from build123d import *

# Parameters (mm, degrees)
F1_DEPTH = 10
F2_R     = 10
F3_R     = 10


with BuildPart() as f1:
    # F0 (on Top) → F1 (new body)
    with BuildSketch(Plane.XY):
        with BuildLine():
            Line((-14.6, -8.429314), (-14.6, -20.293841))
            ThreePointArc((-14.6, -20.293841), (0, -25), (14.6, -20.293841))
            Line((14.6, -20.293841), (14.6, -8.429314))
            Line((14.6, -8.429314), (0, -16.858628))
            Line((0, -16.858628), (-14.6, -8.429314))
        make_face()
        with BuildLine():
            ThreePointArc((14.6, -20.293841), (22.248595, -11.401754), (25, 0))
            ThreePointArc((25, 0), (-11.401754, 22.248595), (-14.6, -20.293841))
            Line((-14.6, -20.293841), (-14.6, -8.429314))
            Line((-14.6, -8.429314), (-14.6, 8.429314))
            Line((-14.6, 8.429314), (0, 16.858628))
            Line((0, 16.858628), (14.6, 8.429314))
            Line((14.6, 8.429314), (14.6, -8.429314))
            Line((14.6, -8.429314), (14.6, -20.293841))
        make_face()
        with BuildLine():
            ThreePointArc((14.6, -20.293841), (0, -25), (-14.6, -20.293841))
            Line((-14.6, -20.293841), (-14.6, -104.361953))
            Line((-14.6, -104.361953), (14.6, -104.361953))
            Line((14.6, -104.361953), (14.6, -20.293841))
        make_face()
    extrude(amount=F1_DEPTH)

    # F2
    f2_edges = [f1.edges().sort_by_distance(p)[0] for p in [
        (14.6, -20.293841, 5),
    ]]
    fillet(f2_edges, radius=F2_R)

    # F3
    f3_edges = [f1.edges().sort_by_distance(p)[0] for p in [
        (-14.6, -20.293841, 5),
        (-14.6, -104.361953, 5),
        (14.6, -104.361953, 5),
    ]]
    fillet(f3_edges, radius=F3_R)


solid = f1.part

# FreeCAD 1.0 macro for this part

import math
import FreeCAD as App
import Part
import Sketcher
from FreeCAD import Vector
Q = App.Units.Quantity


def edges_at(feature, points):
    """Names of the edges that pass closest to the given points."""
    edges = feature.Shape.Edges
    near = lambda p: min(range(len(edges)), key=lambda i: edges[i].distToShape(Part.Vertex(*p))[0])
    return sorted({f"Edge{near(p) + 1}" for p in points})

doc = App.newDocument("Part")
body = doc.addObject("PartDesign::Body", "Body")

sketch1 = body.newObject("Sketcher::SketchObject", "Sketch")
sketch1.AttachmentSupport = (doc.getObject("XY_Plane"), [""])
sketch1.MapMode = "FlatFace"
sketch1.addGeometry([
    Part.ArcOfCircle(Part.Circle(Vector(-0.000003, 0.000002, 0), Vector(0, 0, 1), 25.000003), math.radians(-54.267621), math.radians(-0.000004)),
    Part.ArcOfCircle(Part.Circle(Vector(0, 0, 0), Vector(0, 0, 1), 25), math.radians(0), math.radians(234.267623)),
    Part.LineSegment(Vector(-14.6, -20.293841, 0), Vector(-14.6, -104.361953, 0)),
    Part.LineSegment(Vector(-14.6, -104.361953, 0), Vector(14.6, -104.361953, 0)),
    Part.LineSegment(Vector(14.6, -104.361953, 0), Vector(14.6, -20.293841, 0)),
    Part.LineSegment(Vector(14.6, -8.429314, 0), Vector(0, -16.858628, 0)),
    Part.LineSegment(Vector(0, -16.858628, 0), Vector(-14.6, -8.429314, 0)),
    Part.LineSegment(Vector(-14.6, -8.429314, 0), Vector(-14.6, 8.429314, 0)),
    Part.LineSegment(Vector(-14.6, 8.429314, 0), Vector(0, 16.858628, 0)),
    Part.LineSegment(Vector(0, 16.858628, 0), Vector(14.6, 8.429314, 0)),
    Part.LineSegment(Vector(14.6, 8.429314, 0), Vector(14.6, -8.429314, 0)),
], False)
sketch1.addConstraint([
    Sketcher.Constraint("Tangent", 0, 2, 1, 1),
    Sketcher.Constraint("Coincident", 1, 2, 2, 1),
    Sketcher.Constraint("Coincident", 2, 2, 3, 1),
    Sketcher.Constraint("Coincident", 3, 2, 4, 1),
    Sketcher.Constraint("Coincident", 4, 2, 0, 1),
    Sketcher.Constraint("Coincident", 5, 2, 6, 1),
    Sketcher.Constraint("Coincident", 6, 2, 7, 1),
    Sketcher.Constraint("Coincident", 7, 2, 8, 1),
    Sketcher.Constraint("Coincident", 8, 2, 9, 1),
    Sketcher.Constraint("Coincident", 9, 2, 10, 1),
    Sketcher.Constraint("Coincident", 10, 2, 5, 1),
    Sketcher.Constraint("Vertical", 2),
    Sketcher.Constraint("Horizontal", 3),
    Sketcher.Constraint("Vertical", 4),
    Sketcher.Constraint("Vertical", 7),
    Sketcher.Constraint("Vertical", 10),
    Sketcher.Constraint("Coincident", 0, 3, -1, 1),
    Sketcher.Constraint("Symmetric", 5, 2, 8, 2, -1, 1),
    Sketcher.Constraint("Symmetric", 6, 2, 9, 2, -1, 1),
    Sketcher.Constraint("Symmetric", 1, 2, 4, 2, -2),
    Sketcher.Constraint("PointOnObject", 0, 2, -1),
    Sketcher.Constraint("PointOnObject", 5, 2, -2),
    Sketcher.Constraint("Parallel", 5, 8),
    Sketcher.Constraint("Horizontal", 7, 2, 9, 2),
    Sketcher.Constraint("Vertical", 2, 2, 6, 2),
    Sketcher.Constraint("Radius", 1, Q("25 mm")),
    Sketcher.Constraint("Angle", 5, Q("-150 deg")),
    Sketcher.Constraint("DistanceX", 3, 1, 3, 2, Q("29.2 mm")),
    Sketcher.Constraint("DistanceY", 2, 2, 2, 1, Q("84.068112 mm")),
    Sketcher.Constraint("DistanceY", 7, 1, 7, 2, Q("16.858628 mm")),
])
pad1 = body.newObject("PartDesign::Pad", "Pad")
pad1.Profile = sketch1
pad1.Length = 10
doc.recompute()

fillet = body.newObject("PartDesign::Fillet", "Fillet")
fillet.Base = (pad1, edges_at(pad1, [(14.6, -20.294, 5)]))
fillet.Radius = 10
doc.recompute()

fillet2 = body.newObject("PartDesign::Fillet", "Fillet001")
fillet2.Base = (fillet, edges_at(fillet, [(-14.6, -20.294, 5), (-14.6, -104.362, 5), (14.6, -104.362, 5)]))
fillet2.Radius = 10

doc.recompute()
